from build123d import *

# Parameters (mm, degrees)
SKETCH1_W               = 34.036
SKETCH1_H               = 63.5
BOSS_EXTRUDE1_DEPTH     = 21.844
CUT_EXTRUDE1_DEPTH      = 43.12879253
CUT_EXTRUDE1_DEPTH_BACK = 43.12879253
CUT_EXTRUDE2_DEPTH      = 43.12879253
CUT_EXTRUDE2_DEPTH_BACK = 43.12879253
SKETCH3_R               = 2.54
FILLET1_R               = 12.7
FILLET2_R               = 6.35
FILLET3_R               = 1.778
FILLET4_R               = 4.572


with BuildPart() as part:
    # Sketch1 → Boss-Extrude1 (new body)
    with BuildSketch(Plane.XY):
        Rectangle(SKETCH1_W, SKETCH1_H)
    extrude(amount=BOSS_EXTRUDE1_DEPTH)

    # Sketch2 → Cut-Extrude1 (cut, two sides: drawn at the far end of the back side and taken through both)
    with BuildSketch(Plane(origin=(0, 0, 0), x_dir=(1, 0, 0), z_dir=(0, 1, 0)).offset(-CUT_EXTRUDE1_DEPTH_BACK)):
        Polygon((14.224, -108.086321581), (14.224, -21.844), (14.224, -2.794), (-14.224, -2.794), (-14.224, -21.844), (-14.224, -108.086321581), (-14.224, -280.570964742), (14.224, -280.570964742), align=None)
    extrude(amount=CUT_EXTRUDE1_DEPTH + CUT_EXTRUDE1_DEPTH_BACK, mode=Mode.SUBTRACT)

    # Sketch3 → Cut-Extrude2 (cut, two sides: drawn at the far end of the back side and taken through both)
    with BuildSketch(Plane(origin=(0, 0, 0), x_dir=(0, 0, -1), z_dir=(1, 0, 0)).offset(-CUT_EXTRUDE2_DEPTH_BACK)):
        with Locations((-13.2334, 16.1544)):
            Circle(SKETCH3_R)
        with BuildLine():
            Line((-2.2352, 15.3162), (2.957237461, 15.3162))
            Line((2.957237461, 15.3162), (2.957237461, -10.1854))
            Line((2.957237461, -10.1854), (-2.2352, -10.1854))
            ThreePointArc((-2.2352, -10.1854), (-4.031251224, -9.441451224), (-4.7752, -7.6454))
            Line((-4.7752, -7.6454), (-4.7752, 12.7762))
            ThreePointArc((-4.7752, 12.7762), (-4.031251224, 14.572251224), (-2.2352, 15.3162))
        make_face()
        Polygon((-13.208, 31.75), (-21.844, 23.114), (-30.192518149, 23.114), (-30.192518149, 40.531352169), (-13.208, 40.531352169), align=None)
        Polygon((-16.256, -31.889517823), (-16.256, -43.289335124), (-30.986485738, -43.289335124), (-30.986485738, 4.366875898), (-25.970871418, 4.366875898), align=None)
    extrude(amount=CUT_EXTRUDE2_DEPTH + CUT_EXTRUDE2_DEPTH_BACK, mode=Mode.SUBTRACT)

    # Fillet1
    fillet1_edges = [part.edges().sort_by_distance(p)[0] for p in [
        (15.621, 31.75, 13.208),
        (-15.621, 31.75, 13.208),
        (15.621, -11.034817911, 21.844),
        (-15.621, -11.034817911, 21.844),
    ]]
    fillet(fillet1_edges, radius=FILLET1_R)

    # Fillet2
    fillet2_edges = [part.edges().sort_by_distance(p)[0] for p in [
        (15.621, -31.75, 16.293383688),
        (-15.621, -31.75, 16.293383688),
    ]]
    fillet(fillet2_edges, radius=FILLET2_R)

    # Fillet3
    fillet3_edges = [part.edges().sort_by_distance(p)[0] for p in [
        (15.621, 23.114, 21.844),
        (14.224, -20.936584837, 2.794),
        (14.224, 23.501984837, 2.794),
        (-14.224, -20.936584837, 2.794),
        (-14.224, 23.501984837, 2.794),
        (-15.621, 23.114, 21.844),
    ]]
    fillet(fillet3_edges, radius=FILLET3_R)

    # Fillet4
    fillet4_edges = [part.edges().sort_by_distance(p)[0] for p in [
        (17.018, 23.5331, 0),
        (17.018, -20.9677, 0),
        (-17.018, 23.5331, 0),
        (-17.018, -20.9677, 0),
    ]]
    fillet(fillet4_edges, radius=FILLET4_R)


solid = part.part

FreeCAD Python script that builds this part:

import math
import FreeCAD as App
import Part
import Sketcher
from FreeCAD import Vector
Q = App.Units.Quantity


def edges_at(feature, points):
    """Names of the edges that pass closest to the given points."""
    edges = feature.Shape.Edges
    near = lambda p: min(range(len(edges)), key=lambda i: edges[i].distToShape(Part.Vertex(*p))[0])
    return sorted({f"Edge{near(p) + 1}" for p in points})


def add_polygon(sketch, points):
    """Adds a closed chain of lines whose ends are joined by coincident constraints."""
    first, n = sketch.GeometryCount, len(points)
    for a, b in zip(points, points[1:] + points[:1]):
        sketch.addGeometry(Part.LineSegment(App.Vector(*a, 0), App.Vector(*b, 0)), False)
    for i in range(n):
        sketch.addConstraint(Sketcher.Constraint("Coincident", first + i, 2, first + (i + 1) % n, 1))

doc = App.newDocument("Part")
body = doc.addObject("PartDesign::Body", "Body")

# Sketch on XY plane
sketch1 = doc.addObject("Sketcher::SketchObject", "Sketch")
body.addObject(sketch1)
sketch1.AttachmentSupport = (doc.XY_Plane, [""])
sketch1.MapMode = "FlatFace"
add_polygon(sketch1, [(-17, 32), (-17, -32), (17, -32), (17, 32)])  # lines 0-3
sketch1.addConstraint(Sketcher.Constraint("Vertical", 0))
sketch1.addConstraint(Sketcher.Constraint("Horizontal", 1))
sketch1.addConstraint(Sketcher.Constraint("Vertical", 2))
sketch1.addConstraint(Sketcher.Constraint("Horizontal", 3))
sketch1.addConstraint(Sketcher.Constraint("Symmetric", 0, 2, 2, 2, -1, 1))
sketch1.addConstraint(Sketcher.Constraint("DistanceY", 0, 2, 0, 1, Q("2.5 in")))
sketch1.addConstraint(Sketcher.Constraint("DistanceX", 1, 1, 1, 2, Q("1.34 in")))
pad1 = doc.addObject("PartDesign::Pad", "Pad")
body.addObject(pad1)
pad1.Profile = sketch1
pad1.Length = Q("0.86 in")

# Sketch on XZ plane
sketch2 = doc.addObject("Sketcher::SketchObject", "Sketch001")
body.addObject(sketch2)
sketch2.AttachmentSupport = (doc.XZ_Plane, [""])
sketch2.MapMode = "FlatFace"
add_polygon(sketch2, [(14, 3), (-14, 3), (-14, 281), (14, 281)])  # lines 0-3
sketch2.addConstraint(Sketcher.Constraint("Horizontal", 0))
sketch2.addConstraint(Sketcher.Constraint("Vertical", 1))
sketch2.addConstraint(Sketcher.Constraint("Horizontal", 2))
sketch2.addConstraint(Sketcher.Constraint("Vertical", 3))
sketch2.addConstraint(Sketcher.Constraint("DistanceX", 0, 2, 0, 1, Q("1.12 in")))
sketch2.addConstraint(Sketcher.Constraint("DistanceX", 0, 2, -1, 1, Q("0.56 in")))
sketch2.addConstraint(Sketcher.Constraint("DistanceY", -1, 1, 0, 2, Q("0.11 in")))
sketch2.addConstraint(Sketcher.Constraint("DistanceY", 1, 1, 1, 2, Q("277.776965 mm")))
pocket1 = doc.addObject("PartDesign::Pocket", "Pocket")
body.addObject(pocket1)
pocket1.Profile = sketch2
pocket1.Type = "ThroughAll"
pocket1.Midplane = True

# Sketch on YZ plane
sketch3 = doc.addObject("Sketcher::SketchObject", "Sketch002")
body.addObject(sketch3)
sketch3.AttachmentSupport = (doc.YZ_Plane, [""])
sketch3.MapMode = "FlatFace"
sketch3.addGeometry(Part.Circle(Vector(16.2, 13.2, 0), Vector(0, 0, 1), 2.5), False)  # 0
sketch3.addGeometry(Part.LineSegment(Vector(15.3, -3, 0), Vector(15.3, 2.2, 0)), False)  # 1
sketch3.addGeometry(Part.ArcOfCircle(Part.Circle(Vector(12.8, 2.2, 0), Vector(0, 0, 1), 2.5), math.radians(0), math.radians(90)), False)  # 2
sketch3.addGeometry(Part.LineSegment(Vector(12.8, 4.8, 0), Vector(-7.6, 4.8, 0)), False)  # 3
sketch3.addGeometry(Part.ArcOfCircle(Part.Circle(Vector(-7.6, 2.2, 0), Vector(0, 0, 1), 2.5), math.radians(90), math.radians(180)), False)  # 4
sketch3.addGeometry(Part.LineSegment(Vector(-10.2, 2.2, 0), Vector(-10.2, -3, 0)), False)  # 5
sketch3.addGeometry(Part.LineSegment(Vector(-10.2, -3, 0), Vector(15.3, -3, 0)), False)  # 6
add_polygon(sketch3, [(23.1, 21.8), (31.8, 13.2), (40.5, 13.2), (40.5, 30.2), (23.1, 30.2)])  # lines 7-11
add_polygon(sketch3, [(-43.3, 16.3), (-31.9, 16.3), (4.4, 26), (4.4, 31), (-43.3, 31)])  # lines 12-16
sketch3.addConstraint(Sketcher.Constraint("Tangent", 1, 2, 2, 1))
sketch3.addConstraint(Sketcher.Constraint("Tangent", 2, 2, 3, 1))
sketch3.addConstraint(Sketcher.Constraint("Tangent", 3, 2, 4, 1))
sketch3.addConstraint(Sketcher.Constraint("Tangent", 4, 2, 5, 1))
sketch3.addConstraint(Sketcher.Constraint("Coincident", 5, 2, 6, 1))
sketch3.addConstraint(Sketcher.Constraint("Coincident", 6, 2, 1, 1))
sketch3.addConstraint(Sketcher.Constraint("Vertical", 1))
sketch3.addConstraint(Sketcher.Constraint("Horizontal", 3))
sketch3.addConstraint(Sketcher.Constraint("Vertical", 5))
sketch3.addConstraint(Sketcher.Constraint("Horizontal", 6))
sketch3.addConstraint(Sketcher.Constraint("Horizontal", 8))
sketch3.addConstraint(Sketcher.Constraint("Vertical", 9))
sketch3.addConstraint(Sketcher.Constraint("Horizontal", 10))
sketch3.addConstraint(Sketcher.Constraint("Vertical", 11))
sketch3.addConstraint(Sketcher.Constraint("Horizontal", 12))
sketch3.addConstraint(Sketcher.Constraint("Vertical", 14))
sketch3.addConstraint(Sketcher.Constraint("Horizontal", 15))
sketch3.addConstraint(Sketcher.Constraint("Vertical", 16))
sketch3.addConstraint(Sketcher.Constraint("Equal", 0, 2))
sketch3.addConstraint(Sketcher.Constraint("Equal", 2, 4))
sketch3.addConstraint(Sketcher.Constraint("Diameter", 0, Q("0.2 in")))
sketch3.addConstraint(Sketcher.Constraint("Angle", 7, Q("-45 deg")))
sketch3.addConstraint(Sketcher.Constraint("Angle", 13, Q("15 deg")))
sketch3.addConstraint(Sketcher.Constraint("DistanceX", 3, 2, 3, 1, Q("0.804 in")))
sketch3.addConstraint(Sketcher.Constraint("DistanceX", -1, 1, 7, 2, Q("1.25 in")))
sketch3.addConstraint(Sketcher.Constraint("DistanceY", -1, 1, 7, 2, Q("0.52 in")))
sketch3.addConstraint(Sketcher.Constraint("DistanceX", -1, 1, 10, 2, Q("0.91 in")))
sketch3.addConstraint(Sketcher.Constraint("DistanceY", -1, 1, 12, 2, Q("0.64 in")))
sketch3.addConstraint(Sketcher.Constraint("DistanceX", -1, 1, 0, 3, Q("0.636 in")))
sketch3.addConstraint(Sketcher.Constraint("DistanceY", -1, 1, 0, 3, Q("0.521 in")))
sketch3.addConstraint(Sketcher.Constraint("DistanceX", -1, 1, 2, 3, Q("0.503 in")))
sketch3.addConstraint(Sketcher.Constraint("DistanceY", -1, 1, 2, 3, Q("0.088 in")))
sketch3.addConstraint(Sketcher.Constraint("DistanceX", 15, 2, 15, 1, Q("47.656211 mm")))
sketch3.addConstraint(Sketcher.Constraint("DistanceY", 9, 1, 9, 2, Q("16.984518 mm")))
sketch3.addConstraint(Sketcher.Constraint("Distance", 13, Q("37.535381 mm")))
sketch3.addConstraint(Sketcher.Constraint("DistanceX", 8, 1, 8, 2, Q("8.781352 mm")))
sketch3.addConstraint(Sketcher.Constraint("DistanceY", 1, 1, 1, 2, Q("5.192437 mm")))
sketch3.addConstraint(Sketcher.Constraint("DistanceY", 14, 1, 14, 2, Q("5.015614 mm")))
sketch3.addConstraint(Sketcher.Constraint("DistanceX", 12, 2, -1, 1, Q("31.889518 mm")))
pocket2 = doc.addObject("PartDesign::Pocket", "Pocket001")
body.addObject(pocket2)
pocket2.Profile = sketch3
pocket2.Type = "ThroughAll"
pocket2.Midplane = True
doc.recompute()

fillet = doc.addObject("PartDesign::Fillet", "Fillet")
body.addObject(fillet)
fillet.Base = (pocket2, edges_at(pocket2, [
    (15.621, 31.75, 13.208),
    (-15.621, 31.75, 13.208),
    (15.621, -11.035, 21.844),
    (-15.621, -11.035, 21.844),
]))
fillet.Radius = Q("0.5 in")
doc.recompute()

fillet2 = doc.addObject("PartDesign::Fillet", "Fillet001")
body.addObject(fillet2)
fillet2.Base = (fillet, edges_at(fillet, [(15.621, -31.75, 16.293), (-15.621, -31.75, 16.293)]))
fillet2.Radius = Q("0.25 in")
doc.recompute()

fillet3 = doc.addObject("PartDesign::Fillet", "Fillet002")
body.addObject(fillet3)
fillet3.Base = (fillet2, edges_at(fillet2, [
    (15.621, 23.114, 21.844),
    (14.224, -20.937, 2.794),
    (14.224, 23.502, 2.794),
    (-14.224, -20.937, 2.794),
    (-14.224, 23.502, 2.794),
    (-15.621, 23.114, 21.844),
]))
fillet3.Radius = Q("0.07 in")
doc.recompute()

fillet4 = doc.addObject("PartDesign::Fillet", "Fillet003")
body.addObject(fillet4)
fillet4.Base = (fillet3, edges_at(fillet3, [
    (17.018, 23.533, 0),
    (17.018, -20.968, 0),
    (-17.018, 23.533, 0),
    (-17.018, -20.968, 0),
]))
fillet4.Radius = Q("0.18 in")

doc.recompute()
